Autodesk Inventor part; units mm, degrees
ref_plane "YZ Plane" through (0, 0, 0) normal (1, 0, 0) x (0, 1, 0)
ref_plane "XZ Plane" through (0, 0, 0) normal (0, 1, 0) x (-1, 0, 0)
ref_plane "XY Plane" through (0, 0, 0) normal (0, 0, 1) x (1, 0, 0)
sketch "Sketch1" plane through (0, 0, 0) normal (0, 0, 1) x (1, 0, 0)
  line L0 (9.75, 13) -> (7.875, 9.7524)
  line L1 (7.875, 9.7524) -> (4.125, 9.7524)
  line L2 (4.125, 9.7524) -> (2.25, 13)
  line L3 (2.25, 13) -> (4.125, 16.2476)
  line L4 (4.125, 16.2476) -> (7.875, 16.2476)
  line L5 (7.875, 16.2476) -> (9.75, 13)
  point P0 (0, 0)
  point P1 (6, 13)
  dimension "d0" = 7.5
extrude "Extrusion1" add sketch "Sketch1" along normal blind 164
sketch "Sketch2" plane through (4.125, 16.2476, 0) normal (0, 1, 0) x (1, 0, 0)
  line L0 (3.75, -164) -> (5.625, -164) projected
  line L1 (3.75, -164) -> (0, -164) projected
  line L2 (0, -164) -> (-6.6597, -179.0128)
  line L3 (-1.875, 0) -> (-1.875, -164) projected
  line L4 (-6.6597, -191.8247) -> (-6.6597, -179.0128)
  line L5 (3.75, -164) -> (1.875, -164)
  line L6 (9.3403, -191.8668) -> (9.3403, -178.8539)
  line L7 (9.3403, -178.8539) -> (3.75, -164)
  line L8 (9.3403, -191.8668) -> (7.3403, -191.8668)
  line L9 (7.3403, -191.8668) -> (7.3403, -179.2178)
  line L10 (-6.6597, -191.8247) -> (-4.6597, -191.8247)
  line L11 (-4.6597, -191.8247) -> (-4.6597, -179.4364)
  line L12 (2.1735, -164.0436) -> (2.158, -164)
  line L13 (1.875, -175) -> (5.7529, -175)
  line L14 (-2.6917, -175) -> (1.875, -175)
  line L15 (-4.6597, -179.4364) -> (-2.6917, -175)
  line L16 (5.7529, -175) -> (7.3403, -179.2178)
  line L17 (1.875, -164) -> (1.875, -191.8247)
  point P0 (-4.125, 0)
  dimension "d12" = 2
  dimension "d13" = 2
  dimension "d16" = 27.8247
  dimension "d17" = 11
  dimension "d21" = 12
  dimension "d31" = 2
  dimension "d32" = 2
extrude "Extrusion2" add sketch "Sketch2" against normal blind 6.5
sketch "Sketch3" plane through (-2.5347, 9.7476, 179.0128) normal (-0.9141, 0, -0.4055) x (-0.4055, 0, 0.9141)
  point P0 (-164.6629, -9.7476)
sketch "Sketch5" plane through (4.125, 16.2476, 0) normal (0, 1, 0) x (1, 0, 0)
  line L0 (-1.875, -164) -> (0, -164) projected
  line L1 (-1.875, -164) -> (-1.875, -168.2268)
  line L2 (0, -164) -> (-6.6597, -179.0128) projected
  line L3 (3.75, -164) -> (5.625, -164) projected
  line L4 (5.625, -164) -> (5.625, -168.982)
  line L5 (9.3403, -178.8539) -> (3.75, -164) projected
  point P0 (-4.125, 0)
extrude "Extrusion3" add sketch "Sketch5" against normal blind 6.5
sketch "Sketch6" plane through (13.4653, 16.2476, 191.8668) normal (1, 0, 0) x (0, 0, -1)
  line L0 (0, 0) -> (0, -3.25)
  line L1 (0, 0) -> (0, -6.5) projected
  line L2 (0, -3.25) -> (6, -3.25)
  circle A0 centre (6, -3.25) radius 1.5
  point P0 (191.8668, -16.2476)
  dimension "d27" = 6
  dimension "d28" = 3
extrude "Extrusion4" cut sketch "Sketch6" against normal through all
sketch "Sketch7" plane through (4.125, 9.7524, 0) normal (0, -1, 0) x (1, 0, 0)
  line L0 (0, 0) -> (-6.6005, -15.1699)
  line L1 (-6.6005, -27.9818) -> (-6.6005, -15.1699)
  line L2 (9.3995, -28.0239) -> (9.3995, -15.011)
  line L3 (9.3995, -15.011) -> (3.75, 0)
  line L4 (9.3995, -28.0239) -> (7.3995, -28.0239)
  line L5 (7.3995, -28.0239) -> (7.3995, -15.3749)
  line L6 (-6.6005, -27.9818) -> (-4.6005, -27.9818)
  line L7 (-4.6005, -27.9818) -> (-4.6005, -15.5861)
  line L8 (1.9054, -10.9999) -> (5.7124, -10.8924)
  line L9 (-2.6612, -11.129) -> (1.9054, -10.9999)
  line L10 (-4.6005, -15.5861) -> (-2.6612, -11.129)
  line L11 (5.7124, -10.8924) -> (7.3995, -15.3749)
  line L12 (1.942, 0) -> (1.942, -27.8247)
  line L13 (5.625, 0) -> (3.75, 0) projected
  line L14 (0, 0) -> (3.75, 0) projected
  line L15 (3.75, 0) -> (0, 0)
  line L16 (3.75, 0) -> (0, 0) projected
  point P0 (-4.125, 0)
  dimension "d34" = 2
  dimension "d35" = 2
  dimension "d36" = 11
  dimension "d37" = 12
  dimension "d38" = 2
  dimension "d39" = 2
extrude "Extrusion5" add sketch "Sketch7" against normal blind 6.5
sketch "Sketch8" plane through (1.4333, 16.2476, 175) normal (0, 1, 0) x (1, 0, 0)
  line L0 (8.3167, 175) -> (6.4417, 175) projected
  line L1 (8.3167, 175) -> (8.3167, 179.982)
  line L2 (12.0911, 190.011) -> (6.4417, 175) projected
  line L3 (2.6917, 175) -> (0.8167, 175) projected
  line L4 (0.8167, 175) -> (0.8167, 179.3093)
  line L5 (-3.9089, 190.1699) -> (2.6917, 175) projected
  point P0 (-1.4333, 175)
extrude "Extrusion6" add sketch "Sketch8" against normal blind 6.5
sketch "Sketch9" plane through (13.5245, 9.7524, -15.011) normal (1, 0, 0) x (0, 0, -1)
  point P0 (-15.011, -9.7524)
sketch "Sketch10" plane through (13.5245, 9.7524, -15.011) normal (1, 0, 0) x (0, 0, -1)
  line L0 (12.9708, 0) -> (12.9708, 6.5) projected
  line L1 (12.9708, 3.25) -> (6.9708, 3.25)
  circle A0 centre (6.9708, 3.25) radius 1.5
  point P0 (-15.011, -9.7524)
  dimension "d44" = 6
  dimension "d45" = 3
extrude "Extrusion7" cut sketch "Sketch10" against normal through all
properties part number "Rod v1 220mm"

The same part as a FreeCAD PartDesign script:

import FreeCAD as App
import Part
import Sketcher

V = App.Vector
Q = App.Units.Quantity

doc = App.newDocument("Part")
body = doc.addObject("PartDesign::Body", "Body")

# Sketch on XY plane
sketch1 = body.newObject("Sketcher::SketchObject", "Sketch")
sketch1.AttachmentSupport = (doc.getObject("XY_Plane"), [""])
sketch1.MapMode = "FlatFace"
sketch1.addGeometry(Part.LineSegment(V(7.9, 9.8, 0), V(9.8, 13, 0)), False)
sketch1.addGeometry(Part.LineSegment(V(9.8, 13, 0), V(7.9, 16.2, 0)), False)
sketch1.addGeometry(Part.LineSegment(V(7.9, 16.2, 0), V(4.1, 16.2, 0)), False)
sketch1.addGeometry(Part.LineSegment(V(4.1, 16.2, 0), V(2.2, 13, 0)), False)
sketch1.addGeometry(Part.LineSegment(V(2.2, 13, 0), V(4.1, 9.8, 0)), False)
sketch1.addGeometry(Part.LineSegment(V(4.1, 9.8, 0), V(7.9, 9.8, 0)), False)
sketch1.addConstraint(Sketcher.Constraint("Coincident", 0, 2, 1, 1))
sketch1.addConstraint(Sketcher.Constraint("Coincident", 1, 2, 2, 1))
sketch1.addConstraint(Sketcher.Constraint("Coincident", 2, 2, 3, 1))
sketch1.addConstraint(Sketcher.Constraint("Coincident", 3, 2, 4, 1))
sketch1.addConstraint(Sketcher.Constraint("Coincident", 4, 2, 5, 1))
sketch1.addConstraint(Sketcher.Constraint("Coincident", 5, 2, 0, 1))
sketch1.addConstraint(Sketcher.Constraint("Horizontal", 2))
sketch1.addConstraint(Sketcher.Constraint("Horizontal", 5))
sketch1.addConstraint(Sketcher.Constraint("Parallel", 0, 3))
sketch1.addConstraint(Sketcher.Constraint("Parallel", 1, 4))
sketch1.addConstraint(Sketcher.Constraint("Horizontal", 0, 2, 3, 2))
sketch1.addConstraint(Sketcher.Constraint("Vertical", 2, 2, 4, 2))
sketch1.addConstraint(Sketcher.Constraint("Vertical", 1, 2, 5, 2))
sketch1.addConstraint(Sketcher.Constraint("DistanceX", 3, 2, 0, 2, Q("7.5 mm")))
sketch1.addConstraint(Sketcher.Constraint("Angle", 0, Q("60 deg")))
sketch1.addConstraint(Sketcher.Constraint("DistanceY", -1, 1, 0, 2, Q("13 mm")))
sketch1.addConstraint(Sketcher.Constraint("DistanceX", 2, 2, 2, 1, Q("3.75 mm")))
sketch1.addConstraint(Sketcher.Constraint("DistanceX", -1, 1, 0, 2, Q("9.75 mm")))
pad1 = body.newObject("PartDesign::Pad", "Pad")
pad1.Profile = sketch1
pad1.Length = 164

# Sketch on XZ plane
sketch2 = body.newObject("Sketcher::SketchObject", "Sketch001")
sketch2.AttachmentSupport = (doc.getObject("XZ_Plane"), [""])
sketch2.MapMode = "FlatFace"
sketch2.AttachmentOffset = App.Placement(V(0, 0, -16.2476), App.Rotation())
sketch2.addGeometry(Part.LineSegment(V(13.5, 178.9, 0), V(7.9, 164, 0)), False)
sketch2.addGeometry(Part.LineSegment(V(7.9, 164, 0), V(4.1, 164, 0)), False)
sketch2.addGeometry(Part.LineSegment(V(4.1, 164, 0), V(-2.5, 179, 0)), False)
sketch2.addGeometry(Part.LineSegment(V(-2.5, 179, 0), V(-2.5, 191.8, 0)), False)
sketch2.addGeometry(Part.LineSegment(V(-2.5, 191.8, 0), V(-0.5, 191.8, 0)), False)
sketch2.addGeometry(Part.LineSegment(V(-0.5, 191.8, 0), V(-0.5, 179.4, 0)), False)
sketch2.addGeometry(Part.LineSegment(V(-0.5, 179.4, 0), V(1.4, 175, 0)), False)
sketch2.addGeometry(Part.LineSegment(V(1.4, 175, 0), V(9.9, 175, 0)), False)
sketch2.addGeometry(Part.LineSegment(V(9.9, 175, 0), V(11.5, 179.2, 0)), False)
sketch2.addGeometry(Part.LineSegment(V(11.5, 179.2, 0), V(11.5, 191.9, 0)), False)
sketch2.addGeometry(Part.LineSegment(V(11.5, 191.9, 0), V(13.5, 191.9, 0)), False)
sketch2.addGeometry(Part.LineSegment(V(13.5, 191.9, 0), V(13.5, 178.9, 0)), False)
sketch2.addConstraint(Sketcher.Constraint("Coincident", 0, 2, 1, 1))
sketch2.addConstraint(Sketcher.Constraint("Coincident", 1, 2, 2, 1))
sketch2.addConstraint(Sketcher.Constraint("Coincident", 2, 2, 3, 1))
sketch2.addConstraint(Sketcher.Constraint("Coincident", 3, 2, 4, 1))
sketch2.addConstraint(Sketcher.Constraint("Coincident", 4, 2, 5, 1))
sketch2.addConstraint(Sketcher.Constraint("Coincident", 5, 2, 6, 1))
sketch2.addConstraint(Sketcher.Constraint("Coincident", 6, 2, 7, 1))
sketch2.addConstraint(Sketcher.Constraint("Coincident", 7, 2, 8, 1))
sketch2.addConstraint(Sketcher.Constraint("Coincident", 8, 2, 9, 1))
sketch2.addConstraint(Sketcher.Constraint("Coincident", 9, 2, 10, 1))
sketch2.addConstraint(Sketcher.Constraint("Coincident", 10, 2, 11, 1))
sketch2.addConstraint(Sketcher.Constraint("Coincident", 11, 2, 0, 1))
sketch2.addConstraint(Sketcher.Constraint("Horizontal", 1))
sketch2.addConstraint(Sketcher.Constraint("Vertical", 3))
sketch2.addConstraint(Sketcher.Constraint("Horizontal", 4))
sketch2.addConstraint(Sketcher.Constraint("Vertical", 5))
sketch2.addConstraint(Sketcher.Constraint("Horizontal", 7))
sketch2.addConstraint(Sketcher.Constraint("Vertical", 9))
sketch2.addConstraint(Sketcher.Constraint("Horizontal", 10))
sketch2.addConstraint(Sketcher.Constraint("Vertical", 11))
sketch2.addConstraint(Sketcher.Constraint("Parallel", 2, 6))
sketch2.addConstraint(Sketcher.Constraint("Parallel", 0, 8))
sketch2.addConstraint(Sketcher.Constraint("Equal", 4, 10))
sketch2.addConstraint(Sketcher.Constraint("DistanceX", 4, 1, 4, 2, Q("2 mm")))
sketch2.addConstraint(Sketcher.Constraint("DistanceY", 1, 2, 6, 2, Q("11 mm")))
sketch2.addConstraint(Sketcher.Constraint("DistanceX", 5, 2, 8, 2, Q("12 mm")))
sketch2.addConstraint(Sketcher.Constraint("DistanceY", -1, 1, 0, 2, Q("164 mm")))
sketch2.addConstraint(Sketcher.Constraint("DistanceX", 1, 2, 1, 1, Q("3.75 mm")))
sketch2.addConstraint(Sketcher.Constraint("DistanceY", 1, 2, 3, 2, Q("27.8247 mm")))
sketch2.addConstraint(Sketcher.Constraint("DistanceY", 3, 1, 3, 2, Q("12.812 mm")))
sketch2.addConstraint(Sketcher.Constraint("DistanceY", 9, 1, 9, 2, Q("12.649 mm")))
sketch2.addConstraint(Sketcher.Constraint("DistanceY", 11, 2, 11, 1, Q("13.013 mm")))
sketch2.addConstraint(Sketcher.Constraint("Distance", 0, Q("15.871 mm")))
sketch2.addConstraint(Sketcher.Constraint("DistanceX", 7, 1, 7, 2, Q("8.4446 mm")))
sketch2.addConstraint(Sketcher.Constraint("DistanceY", 5, 2, 5, 1, Q("12.3883 mm")))
sketch2.addConstraint(Sketcher.Constraint("DistanceX", -1, 1, 0, 2, Q("7.875 mm")))
pad2 = body.newObject("PartDesign::Pad", "Pad001")
pad2.Profile = sketch2
pad2.Length = 6.5

# Sketch on XZ plane
sketch3 = body.newObject("Sketcher::SketchObject", "Sketch002")
sketch3.AttachmentSupport = (doc.getObject("XZ_Plane"), [""])
sketch3.MapMode = "FlatFace"
sketch3.AttachmentOffset = App.Placement(V(0, 0, -16.2476), App.Rotation())
sketch3.addGeometry(Part.LineSegment(V(4.1, 164, 0), V(2.2, 164, 0)), False)
sketch3.addGeometry(Part.LineSegment(V(2.2, 164, 0), V(2.2, 168.2, 0)), False)
sketch3.addGeometry(Part.LineSegment(V(2.2, 168.2, 0), V(4.1, 164, 0)), False)
sketch3.addGeometry(Part.LineSegment(V(9.8, 164, 0), V(7.9, 164, 0)), False)
sketch3.addGeometry(Part.LineSegment(V(7.9, 164, 0), V(9.7, 169, 0)), False)
sketch3.addGeometry(Part.LineSegment(V(9.8, 169, 0), V(9.8, 164, 0)), False)
sketch3.addConstraint(Sketcher.Constraint("Coincident", 0, 2, 1, 1))
sketch3.addConstraint(Sketcher.Constraint("Coincident", 1, 2, 2, 1))
sketch3.addConstraint(Sketcher.Constraint("Coincident", 2, 2, 0, 1))
sketch3.addConstraint(Sketcher.Constraint("Coincident", 3, 2, 4, 1))
sketch3.addConstraint(Sketcher.Constraint("Coincident", 4, 2, 5, 1))
sketch3.addConstraint(Sketcher.Constraint("Coincident", 5, 2, 3, 1))
sketch3.addConstraint(Sketcher.Constraint("Horizontal", 0))
sketch3.addConstraint(Sketcher.Constraint("Vertical", 1))
sketch3.addConstraint(Sketcher.Constraint("Horizontal", 3))
sketch3.addConstraint(Sketcher.Constraint("Vertical", 5))
sketch3.addConstraint(Sketcher.Constraint("Horizontal", 2, 2, 3, 2))
sketch3.addConstraint(Sketcher.Constraint("Equal", 0, 3))
sketch3.addConstraint(Sketcher.Constraint("DistanceY", -1, 1, 0, 2, Q("164 mm")))
sketch3.addConstraint(Sketcher.Constraint("DistanceX", 1, 2, 4, 2, Q("7.5 mm")))
sketch3.addConstraint(Sketcher.Constraint("DistanceX", 0, 2, 0, 1, Q("1.875 mm")))
sketch3.addConstraint(Sketcher.Constraint("DistanceY", 5, 2, 5, 1, Q("4.982 mm")))
sketch3.addConstraint(Sketcher.Constraint("DistanceX", -1, 1, 0, 2, Q("2.25 mm")))
sketch3.addConstraint(Sketcher.Constraint("Distance", 2, Q("4.624 mm")))
pad3 = body.newObject("PartDesign::Pad", "Pad002")
pad3.Profile = sketch3
pad3.Length = 6.5

# Sketch on YZ plane
sketch4 = body.newObject("Sketcher::SketchObject", "Sketch003")
sketch4.AttachmentSupport = (doc.getObject("YZ_Plane"), [""])
sketch4.MapMode = "FlatFace"
sketch4.AttachmentOffset = App.Placement(V(0, 0, 13.4653), App.Rotation())
sketch4.addGeometry(Part.Circle(V(13, 185.9, 0), V(0, 0, 1), 1.5), False)
sketch4.addConstraint(Sketcher.Constraint("Diameter", 0, Q("3 mm")))
sketch4.addConstraint(Sketcher.Constraint("DistanceX", -1, 1, 0, 3, Q("12.9976 mm")))
sketch4.addConstraint(Sketcher.Constraint("DistanceY", -1, 1, 0, 3, Q("185.8668 mm")))
pocket1 = body.newObject("PartDesign::Pocket", "Pocket")
pocket1.Profile = sketch4
pocket1.Type = "ThroughAll"

# Sketch on XZ plane
sketch5 = body.newObject("Sketcher::SketchObject", "Sketch004")
sketch5.AttachmentSupport = (doc.getObject("XZ_Plane"), [""])
sketch5.MapMode = "FlatFace"
sketch5.AttachmentOffset = App.Placement(V(0, 0, -9.7524), App.Rotation())
sketch5.addGeometry(Part.LineSegment(V(4.125, 0, 0), V(-2.4755, -15.1699, 0)), False)
sketch5.addGeometry(Part.LineSegment(V(-2.4755, -15.1699, 0), V(-2.4755, -27.9818, 0)), False)
sketch5.addGeometry(Part.LineSegment(V(-2.4755, -27.9818, 0), V(-0.4755, -27.9818, 0)), False)
sketch5.addGeometry(Part.LineSegment(V(-0.4755, -27.9818, 0), V(-0.4755, -15.5861, 0)), False)
sketch5.addGeometry(Part.LineSegment(V(-0.4755, -15.5861, 0), V(1.4638, -11.129, 0)), False)
sketch5.addGeometry(Part.LineSegment(V(1.4638, -11.129, 0), V(6.0304, -10.9999, 0)), False)
sketch5.addGeometry(Part.LineSegment(V(6.0304, -10.9999, 0), V(9.8374, -10.8924, 0)), False)
sketch5.addGeometry(Part.LineSegment(V(9.8374, -10.8924, 0), V(11.5245, -15.3749, 0)), False)
sketch5.addGeometry(Part.LineSegment(V(11.5245, -15.3749, 0), V(11.5245, -28.0239, 0)), False)
sketch5.addGeometry(Part.LineSegment(V(11.5245, -28.0239, 0), V(13.5245, -28.0239, 0)), False)
sketch5.addGeometry(Part.LineSegment(V(13.5245, -28.0239, 0), V(13.5245, -15.011, 0)), False)
sketch5.addGeometry(Part.LineSegment(V(13.5245, -15.011, 0), V(7.875, 0, 0)), False)
sketch5.addGeometry(Part.LineSegment(V(7.875, 0, 0), V(4.125, 0, 0)), False)
sketch5.addConstraint(Sketcher.Constraint("Coincident", 0, 2, 1, 1))
sketch5.addConstraint(Sketcher.Constraint("Coincident", 1, 2, 2, 1))
sketch5.addConstraint(Sketcher.Constraint("Coincident", 2, 2, 3, 1))
sketch5.addConstraint(Sketcher.Constraint("Coincident", 3, 2, 4, 1))
sketch5.addConstraint(Sketcher.Constraint("Coincident", 4, 2, 5, 1))
sketch5.addConstraint(Sketcher.Constraint("Coincident", 5, 2, 6, 1))
sketch5.addConstraint(Sketcher.Constraint("Coincident", 6, 2, 7, 1))
sketch5.addConstraint(Sketcher.Constraint("Coincident", 7, 2, 8, 1))
sketch5.addConstraint(Sketcher.Constraint("Coincident", 8, 2, 9, 1))
sketch5.addConstraint(Sketcher.Constraint("Coincident", 9, 2, 10, 1))
sketch5.addConstraint(Sketcher.Constraint("Coincident", 10, 2, 11, 1))
sketch5.addConstraint(Sketcher.Constraint("Coincident", 11, 2, 12, 1))
sketch5.addConstraint(Sketcher.Constraint("Coincident", 12, 2, 0, 1))
sketch5.addConstraint(Sketcher.Constraint("Vertical", 1))
sketch5.addConstraint(Sketcher.Constraint("Horizontal", 2))
sketch5.addConstraint(Sketcher.Constraint("Vertical", 3))
sketch5.addConstraint(Sketcher.Constraint("Vertical", 8))
sketch5.addConstraint(Sketcher.Constraint("Horizontal", 9))
sketch5.addConstraint(Sketcher.Constraint("Vertical", 10))
sketch5.addConstraint(Sketcher.Constraint("Horizontal", 12))
sketch5.addConstraint(Sketcher.Constraint("PointOnObject", 11, 2, -1))
sketch5.addConstraint(Sketcher.Constraint("DistanceX", 2, 1, 2, 2, Q("2 mm")))
sketch5.addConstraint(Sketcher.Constraint("DistanceX", 9, 1, 9, 2, Q("2 mm")))
sketch5.addConstraint(Sketcher.Constraint("DistanceY", 5, 2, -1, 1, Q("11 mm")))
sketch5.addConstraint(Sketcher.Constraint("DistanceX", 3, 2, 7, 2, Q("12 mm")))
sketch5.addConstraint(Sketcher.Constraint("DistanceX", 12, 2, 12, 1, Q("3.75 mm")))
sketch5.addConstraint(Sketcher.Constraint("DistanceY", 1, 2, 1, 1, Q("12.812 mm")))
sketch5.addConstraint(Sketcher.Constraint("DistanceY", 8, 2, 8, 1, Q("12.649 mm")))
sketch5.addConstraint(Sketcher.Constraint("DistanceY", 10, 1, 10, 2, Q("13.013 mm")))
sketch5.addConstraint(Sketcher.Constraint("DistanceY", 0, 2, -1, 1, Q("15.17 mm")))
sketch5.addConstraint(Sketcher.Constraint("Distance", 11, Q("16.039 mm")))
sketch5.addConstraint(Sketcher.Constraint("DistanceY", 3, 1, 3, 2, Q("12.3957 mm")))
sketch5.addConstraint(Sketcher.Constraint("DistanceY", 4, 2, -1, 1, Q("11.129 mm")))
sketch5.addConstraint(Sketcher.Constraint("DistanceY", 7, 2, -1, 1, Q("15.375 mm")))
sketch5.addConstraint(Sketcher.Constraint("DistanceX", -1, 1, 11, 2, Q("7.875 mm")))
sketch5.addConstraint(Sketcher.Constraint("DistanceX", 3, 2, 5, 2, Q("6.506 mm")))
sketch5.addConstraint(Sketcher.Constraint("DistanceX", 5, 2, 6, 2, Q("3.807 mm")))
sketch5.addConstraint(Sketcher.Constraint("Distance", 4, Q("4.8607 mm")))
sketch5.addConstraint(Sketcher.Constraint("Distance", 6, Q("3.8085 mm")))
pad4 = body.newObject("PartDesign::Pad", "Pad003")
pad4.Profile = sketch5
pad4.Length = 6.5
pad4.Reversed = True

# Sketch on XZ plane
sketch6 = body.newObject("Sketcher::SketchObject", "Sketch005")
sketch6.AttachmentSupport = (doc.getObject("XZ_Plane"), [""])
sketch6.MapMode = "FlatFace"
sketch6.AttachmentOffset = App.Placement(V(0, 0, -16.2476), App.Rotation())
sketch6.addGeometry(Part.LineSegment(V(7.9, 0, 0), V(9.8, 0, 0)), False)
sketch6.addGeometry(Part.LineSegment(V(9.8, 0, 0), V(9.8, -5, 0)), False)
sketch6.addGeometry(Part.LineSegment(V(9.7, -5, 0), V(7.9, 0, 0)), False)
sketch6.addGeometry(Part.LineSegment(V(2.2, 0, 0), V(4.1, 0, 0)), False)
sketch6.addGeometry(Part.LineSegment(V(4.1, 0, 0), V(2.2, -4.3, 0)), False)
sketch6.addGeometry(Part.LineSegment(V(2.2, -4.3, 0), V(2.2, 0, 0)), False)
sketch6.addConstraint(Sketcher.Constraint("Coincident", 0, 2, 1, 1))
sketch6.addConstraint(Sketcher.Constraint("Coincident", 1, 2, 2, 1))
sketch6.addConstraint(Sketcher.Constraint("Coincident", 2, 2, 0, 1))
sketch6.addConstraint(Sketcher.Constraint("Coincident", 3, 2, 4, 1))
sketch6.addConstraint(Sketcher.Constraint("Coincident", 4, 2, 5, 1))
sketch6.addConstraint(Sketcher.Constraint("Coincident", 5, 2, 3, 1))
sketch6.addConstraint(Sketcher.Constraint("Horizontal", 0))
sketch6.addConstraint(Sketcher.Constraint("Vertical", 1))
sketch6.addConstraint(Sketcher.Constraint("Horizontal", 3))
sketch6.addConstraint(Sketcher.Constraint("Vertical", 5))
sketch6.addConstraint(Sketcher.Constraint("PointOnObject", 0, 2, -1))
sketch6.addConstraint(Sketcher.Constraint("PointOnObject", 3, 2, -1))
sketch6.addConstraint(Sketcher.Constraint("Equal", 0, 3))
sketch6.addConstraint(Sketcher.Constraint("DistanceX", 4, 2, 1, 2, Q("7.5 mm")))
sketch6.addConstraint(Sketcher.Constraint("DistanceX", 0, 1, 0, 2, Q("1.875 mm")))
sketch6.addConstraint(Sketcher.Constraint("DistanceY", 1, 2, 1, 1, Q("4.982 mm")))
sketch6.addConstraint(Sketcher.Constraint("DistanceX", -1, 1, 0, 2, Q("9.75 mm")))
sketch6.addConstraint(Sketcher.Constraint("DistanceY", 5, 1, 5, 2, Q("4.3093 mm")))
pad5 = body.newObject("PartDesign::Pad", "Pad004")
pad5.Profile = sketch6
pad5.Length = 6.5

# Sketch on YZ plane
sketch7 = body.newObject("Sketcher::SketchObject", "Sketch006")
sketch7.AttachmentSupport = (doc.getObject("YZ_Plane"), [""])
sketch7.MapMode = "FlatFace"
sketch7.AttachmentOffset = App.Placement(V(0, 0, 13.5245), App.Rotation())
sketch7.addGeometry(Part.Circle(V(13, -22, 0), V(0, 0, 1), 1.5), False)
sketch7.addConstraint(Sketcher.Constraint("Diameter", 0, Q("3 mm")))
sketch7.addConstraint(Sketcher.Constraint("DistanceX", -1, 1, 0, 3, Q("13.0024 mm")))
sketch7.addConstraint(Sketcher.Constraint("DistanceY", 0, 3, -1, 1, Q("21.9818 mm")))
pocket2 = body.newObject("PartDesign::Pocket", "Pocket001")
pocket2.Profile = sketch7
pocket2.Type = "ThroughAll"

doc.recompute()
